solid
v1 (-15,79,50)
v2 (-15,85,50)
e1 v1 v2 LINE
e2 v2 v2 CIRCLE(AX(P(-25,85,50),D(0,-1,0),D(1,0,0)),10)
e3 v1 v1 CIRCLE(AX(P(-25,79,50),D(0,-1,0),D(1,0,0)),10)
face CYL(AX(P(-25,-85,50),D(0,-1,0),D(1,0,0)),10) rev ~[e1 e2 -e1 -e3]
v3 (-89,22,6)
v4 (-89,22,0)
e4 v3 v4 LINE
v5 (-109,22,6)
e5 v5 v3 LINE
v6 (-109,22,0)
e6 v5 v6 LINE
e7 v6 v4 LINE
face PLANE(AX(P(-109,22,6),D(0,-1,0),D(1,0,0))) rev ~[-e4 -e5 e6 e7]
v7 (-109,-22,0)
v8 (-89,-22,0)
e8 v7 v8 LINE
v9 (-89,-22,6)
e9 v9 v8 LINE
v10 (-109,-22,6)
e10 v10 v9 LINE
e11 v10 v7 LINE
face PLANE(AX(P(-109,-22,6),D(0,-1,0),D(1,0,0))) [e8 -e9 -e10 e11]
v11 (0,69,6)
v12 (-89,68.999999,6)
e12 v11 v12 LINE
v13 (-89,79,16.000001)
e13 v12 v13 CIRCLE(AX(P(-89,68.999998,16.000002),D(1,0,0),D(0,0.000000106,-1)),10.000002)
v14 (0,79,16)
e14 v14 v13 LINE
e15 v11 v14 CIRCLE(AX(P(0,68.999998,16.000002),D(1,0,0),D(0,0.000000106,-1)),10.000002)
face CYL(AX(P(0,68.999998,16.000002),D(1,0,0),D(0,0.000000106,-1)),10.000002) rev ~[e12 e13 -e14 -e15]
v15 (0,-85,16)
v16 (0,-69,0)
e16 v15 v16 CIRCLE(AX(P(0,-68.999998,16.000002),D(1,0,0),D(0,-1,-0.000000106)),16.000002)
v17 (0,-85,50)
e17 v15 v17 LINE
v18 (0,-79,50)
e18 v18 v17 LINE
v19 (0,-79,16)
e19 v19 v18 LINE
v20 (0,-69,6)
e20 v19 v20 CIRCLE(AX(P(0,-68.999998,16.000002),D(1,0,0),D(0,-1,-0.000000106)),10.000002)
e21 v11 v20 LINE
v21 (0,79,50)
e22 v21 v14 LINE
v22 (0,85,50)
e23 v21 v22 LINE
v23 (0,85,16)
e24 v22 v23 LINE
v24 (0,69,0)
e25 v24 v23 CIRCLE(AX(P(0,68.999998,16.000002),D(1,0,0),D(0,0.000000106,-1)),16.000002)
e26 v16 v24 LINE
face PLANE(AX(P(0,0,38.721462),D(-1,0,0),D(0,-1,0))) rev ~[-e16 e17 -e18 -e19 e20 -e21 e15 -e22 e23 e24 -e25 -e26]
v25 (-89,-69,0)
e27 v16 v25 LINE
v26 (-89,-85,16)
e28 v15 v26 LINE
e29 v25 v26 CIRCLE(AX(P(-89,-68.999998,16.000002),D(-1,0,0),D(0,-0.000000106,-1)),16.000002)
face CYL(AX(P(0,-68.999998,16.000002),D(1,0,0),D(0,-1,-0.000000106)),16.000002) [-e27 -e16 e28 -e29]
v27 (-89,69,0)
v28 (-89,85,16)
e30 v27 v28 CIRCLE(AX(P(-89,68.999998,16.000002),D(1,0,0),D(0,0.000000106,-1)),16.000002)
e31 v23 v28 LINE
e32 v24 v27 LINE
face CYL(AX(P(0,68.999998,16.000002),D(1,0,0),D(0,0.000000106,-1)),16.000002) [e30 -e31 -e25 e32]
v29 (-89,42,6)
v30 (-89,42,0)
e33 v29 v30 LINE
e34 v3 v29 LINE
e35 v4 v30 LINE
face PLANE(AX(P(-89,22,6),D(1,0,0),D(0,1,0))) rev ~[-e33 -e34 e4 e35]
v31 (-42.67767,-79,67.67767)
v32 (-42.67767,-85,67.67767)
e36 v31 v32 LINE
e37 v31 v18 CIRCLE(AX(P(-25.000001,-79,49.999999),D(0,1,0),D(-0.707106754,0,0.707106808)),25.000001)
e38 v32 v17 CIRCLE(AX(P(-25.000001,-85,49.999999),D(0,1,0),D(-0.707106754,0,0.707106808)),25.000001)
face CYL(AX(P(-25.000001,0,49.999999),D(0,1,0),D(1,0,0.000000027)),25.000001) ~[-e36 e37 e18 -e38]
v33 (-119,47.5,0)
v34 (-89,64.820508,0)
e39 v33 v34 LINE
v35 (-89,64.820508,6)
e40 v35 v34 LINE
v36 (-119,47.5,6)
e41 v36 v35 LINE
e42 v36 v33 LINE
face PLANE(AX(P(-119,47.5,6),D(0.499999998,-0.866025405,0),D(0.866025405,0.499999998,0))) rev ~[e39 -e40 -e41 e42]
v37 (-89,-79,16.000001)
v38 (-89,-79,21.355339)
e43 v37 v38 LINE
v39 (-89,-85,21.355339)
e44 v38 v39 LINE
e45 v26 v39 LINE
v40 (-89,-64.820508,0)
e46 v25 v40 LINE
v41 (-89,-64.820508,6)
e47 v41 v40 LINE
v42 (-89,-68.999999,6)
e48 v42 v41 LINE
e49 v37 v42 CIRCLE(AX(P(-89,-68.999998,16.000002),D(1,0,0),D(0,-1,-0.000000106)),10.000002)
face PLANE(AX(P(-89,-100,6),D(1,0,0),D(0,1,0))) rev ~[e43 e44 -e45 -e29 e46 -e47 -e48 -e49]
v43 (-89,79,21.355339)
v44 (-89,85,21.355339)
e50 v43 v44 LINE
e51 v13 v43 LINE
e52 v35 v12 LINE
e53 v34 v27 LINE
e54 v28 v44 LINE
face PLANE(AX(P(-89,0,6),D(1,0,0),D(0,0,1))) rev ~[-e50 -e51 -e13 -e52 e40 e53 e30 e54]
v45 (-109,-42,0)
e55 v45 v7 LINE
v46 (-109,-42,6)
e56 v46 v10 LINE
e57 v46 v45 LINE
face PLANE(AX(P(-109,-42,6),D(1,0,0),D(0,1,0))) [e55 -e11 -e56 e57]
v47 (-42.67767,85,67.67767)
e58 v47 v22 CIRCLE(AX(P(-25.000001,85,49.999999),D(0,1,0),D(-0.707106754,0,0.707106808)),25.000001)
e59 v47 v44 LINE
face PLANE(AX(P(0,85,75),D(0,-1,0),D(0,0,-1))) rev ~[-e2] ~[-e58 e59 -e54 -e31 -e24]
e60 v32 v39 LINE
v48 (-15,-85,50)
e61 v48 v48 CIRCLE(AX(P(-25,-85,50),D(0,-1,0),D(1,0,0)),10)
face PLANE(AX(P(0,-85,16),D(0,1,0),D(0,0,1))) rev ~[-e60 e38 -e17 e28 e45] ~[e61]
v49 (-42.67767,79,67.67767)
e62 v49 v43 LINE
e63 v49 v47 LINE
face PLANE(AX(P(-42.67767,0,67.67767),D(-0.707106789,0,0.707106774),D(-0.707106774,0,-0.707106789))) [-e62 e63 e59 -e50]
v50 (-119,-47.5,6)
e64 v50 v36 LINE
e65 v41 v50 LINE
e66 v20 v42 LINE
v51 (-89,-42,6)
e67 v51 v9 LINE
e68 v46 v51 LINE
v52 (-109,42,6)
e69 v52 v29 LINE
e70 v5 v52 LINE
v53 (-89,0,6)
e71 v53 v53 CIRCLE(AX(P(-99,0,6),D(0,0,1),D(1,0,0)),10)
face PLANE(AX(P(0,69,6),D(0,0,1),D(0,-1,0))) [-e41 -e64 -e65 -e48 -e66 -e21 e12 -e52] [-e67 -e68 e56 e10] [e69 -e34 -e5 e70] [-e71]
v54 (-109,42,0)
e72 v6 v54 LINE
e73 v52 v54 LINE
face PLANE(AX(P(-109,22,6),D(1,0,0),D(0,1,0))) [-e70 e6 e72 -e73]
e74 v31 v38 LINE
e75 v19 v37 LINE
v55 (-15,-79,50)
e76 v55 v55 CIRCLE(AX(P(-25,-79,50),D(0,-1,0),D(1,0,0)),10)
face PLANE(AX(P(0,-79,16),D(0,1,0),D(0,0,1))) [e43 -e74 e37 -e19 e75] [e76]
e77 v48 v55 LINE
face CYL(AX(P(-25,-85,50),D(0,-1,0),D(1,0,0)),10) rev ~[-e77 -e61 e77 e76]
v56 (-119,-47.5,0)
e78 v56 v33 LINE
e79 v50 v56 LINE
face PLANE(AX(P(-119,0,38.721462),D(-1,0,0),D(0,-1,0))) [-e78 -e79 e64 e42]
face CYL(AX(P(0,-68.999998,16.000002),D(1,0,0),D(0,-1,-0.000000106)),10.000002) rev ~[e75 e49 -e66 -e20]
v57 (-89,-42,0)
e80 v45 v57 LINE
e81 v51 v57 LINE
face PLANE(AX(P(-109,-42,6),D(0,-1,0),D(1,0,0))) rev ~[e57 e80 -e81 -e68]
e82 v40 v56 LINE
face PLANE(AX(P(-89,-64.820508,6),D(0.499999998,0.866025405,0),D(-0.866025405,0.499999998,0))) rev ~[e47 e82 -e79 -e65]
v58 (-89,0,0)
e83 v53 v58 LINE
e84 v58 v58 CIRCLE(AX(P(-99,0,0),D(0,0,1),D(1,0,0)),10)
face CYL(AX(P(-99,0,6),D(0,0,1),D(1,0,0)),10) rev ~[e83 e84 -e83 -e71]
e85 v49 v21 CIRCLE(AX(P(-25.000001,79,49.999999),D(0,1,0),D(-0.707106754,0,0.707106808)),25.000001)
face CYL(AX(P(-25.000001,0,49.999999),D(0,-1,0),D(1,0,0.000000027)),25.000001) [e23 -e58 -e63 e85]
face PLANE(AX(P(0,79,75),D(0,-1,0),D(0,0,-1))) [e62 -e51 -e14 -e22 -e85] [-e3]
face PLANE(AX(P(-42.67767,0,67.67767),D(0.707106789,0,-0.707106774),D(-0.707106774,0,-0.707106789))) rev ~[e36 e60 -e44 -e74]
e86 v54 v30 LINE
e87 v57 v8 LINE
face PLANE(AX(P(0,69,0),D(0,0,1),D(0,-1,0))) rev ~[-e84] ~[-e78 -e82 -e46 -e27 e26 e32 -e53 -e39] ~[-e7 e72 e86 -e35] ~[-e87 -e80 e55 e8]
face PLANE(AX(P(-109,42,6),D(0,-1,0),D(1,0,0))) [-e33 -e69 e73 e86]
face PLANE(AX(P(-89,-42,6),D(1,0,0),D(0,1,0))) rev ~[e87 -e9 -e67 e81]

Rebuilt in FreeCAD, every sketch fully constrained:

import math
import FreeCAD as App
import Part
import Sketcher
Q = App.Units.Quantity


def faces_at(feature, points):
    """Names of the faces that lie closest to the given points."""
    faces = feature.Shape.Faces
    near = lambda p: min(range(len(faces)), key=lambda i: faces[i].distToShape(Part.Vertex(*p))[0])
    return sorted({f"Face{near(p) + 1}" for p in points})


def add_polygon(sketch, points):
    """Adds a closed chain of lines whose ends are joined by coincident constraints."""
    first, n = sketch.GeometryCount, len(points)
    for a, b in zip(points, points[1:] + points[:1]):
        sketch.addGeometry(Part.LineSegment(App.Vector(*a, 0), App.Vector(*b, 0)), False)
    for i in range(n):
        sketch.addConstraint(Sketcher.Constraint("Coincident", first + i, 2, first + (i + 1) % n, 1))

doc = App.newDocument("Part")
body = doc.addObject("PartDesign::Body", "Body")

sketch1 = body.newObject("Sketcher::SketchObject", "Sketch")
sketch1.AttachmentSupport = (doc.getObject("YZ_Plane"), [""])
sketch1.MapMode = "FlatFace"
sketch1.addGeometry(Part.LineSegment(App.Vector(85, 75, 0), App.Vector(-85, 75, 0)), False)
sketch1.addGeometry(Part.LineSegment(App.Vector(-85, 75, 0), App.Vector(-85, 16, 0)), False)
sketch1.addGeometry(Part.ArcOfCircle(Part.Circle(App.Vector(-69, 16, 0), App.Vector(0, 0, 1), 16), math.radians(-180), math.radians(-90)), False)
sketch1.addGeometry(Part.LineSegment(App.Vector(-69, 0, 0), App.Vector(69, 0, 0)), False)
sketch1.addGeometry(Part.ArcOfCircle(Part.Circle(App.Vector(69, 16, 0), App.Vector(0, 0, 1), 16), math.radians(-90), math.radians(0)), False)
sketch1.addGeometry(Part.LineSegment(App.Vector(85, 16, 0), App.Vector(85, 75, 0)), False)
sketch1.addConstraint(Sketcher.Constraint("Coincident", 0, 2, 1, 1))
sketch1.addConstraint(Sketcher.Constraint("Tangent", 1, 2, 2, 1))
sketch1.addConstraint(Sketcher.Constraint("Tangent", 2, 2, 3, 1))
sketch1.addConstraint(Sketcher.Constraint("Tangent", 3, 2, 4, 1))
sketch1.addConstraint(Sketcher.Constraint("Tangent", 4, 2, 5, 1))
sketch1.addConstraint(Sketcher.Constraint("Coincident", 5, 2, 0, 1))
sketch1.addConstraint(Sketcher.Constraint("Horizontal", 0))
sketch1.addConstraint(Sketcher.Constraint("Vertical", 1))
sketch1.addConstraint(Sketcher.Constraint("Horizontal", 3))
sketch1.addConstraint(Sketcher.Constraint("Vertical", 5))
sketch1.addConstraint(Sketcher.Constraint("Equal", 2, 4))
sketch1.addConstraint(Sketcher.Constraint("Symmetric", 2, 2, 3, 2, -1, 1))
sketch1.addConstraint(Sketcher.Constraint("Radius", 2, Q("16.000002 mm")))
sketch1.addConstraint(Sketcher.Constraint("DistanceX", 0, 2, 0, 1, Q("170 mm")))
sketch1.addConstraint(Sketcher.Constraint("DistanceY", 1, 2, 1, 1, Q("59 mm")))
pad1 = body.newObject("PartDesign::Pad", "Pad")
pad1.Profile = sketch1
pad1.Length = 119
pad1.Reversed = True
doc.recompute()

thickness = body.newObject("PartDesign::Thickness", "Thickness")
thickness.Base = (pad1, faces_at(pad1, [(-119, 0, 37.5), (-59.5, 0, 75), (0, 0, 37.5)]))
thickness.Value = 6
thickness.Reversed = True
thickness.Join = "Arc"

sketch2 = body.newObject("Sketcher::SketchObject", "Sketch001")
sketch2.AttachmentSupport = (doc.getObject("XZ_Plane"), [""])
sketch2.MapMode = "FlatFace"
add_polygon(sketch2, [(-150, 100), (-150, -100), (150, -100), (150, 100)])
sketch2.addGeometry(Part.LineSegment(App.Vector(0, 50, 0), App.Vector(0, 0, 0)), False)
sketch2.addGeometry(Part.LineSegment(App.Vector(0, 0, 0), App.Vector(-119, 0, 0)), False)
sketch2.addGeometry(Part.LineSegment(App.Vector(-119, 0, 0), App.Vector(-119, 6, 0)), False)
sketch2.addGeometry(Part.LineSegment(App.Vector(-119, 6, 0), App.Vector(-89, 6, 0)), False)
sketch2.addGeometry(Part.LineSegment(App.Vector(-89, 6, 0), App.Vector(-89, 21, 0)), False)
sketch2.addGeometry(Part.LineSegment(App.Vector(-89, 21, 0), App.Vector(-43, 68, 0)), False)
sketch2.addGeometry(Part.ArcOfCircle(Part.Circle(App.Vector(-25, 50, 0), App.Vector(0, 0, 1), 25), math.radians(0), math.radians(135)), False)
sketch2.addConstraint(Sketcher.Constraint("Coincident", 4, 2, 5, 1))
sketch2.addConstraint(Sketcher.Constraint("Coincident", 5, 2, 6, 1))
sketch2.addConstraint(Sketcher.Constraint("Coincident", 6, 2, 7, 1))
sketch2.addConstraint(Sketcher.Constraint("Coincident", 7, 2, 8, 1))
sketch2.addConstraint(Sketcher.Constraint("Coincident", 8, 2, 9, 1))
sketch2.addConstraint(Sketcher.Constraint("Tangent", 9, 2, 10, 2))
sketch2.addConstraint(Sketcher.Constraint("Tangent", 10, 1, 4, 1))
sketch2.addConstraint(Sketcher.Constraint("Vertical", 0))
sketch2.addConstraint(Sketcher.Constraint("Horizontal", 1))
sketch2.addConstraint(Sketcher.Constraint("Vertical", 2))
sketch2.addConstraint(Sketcher.Constraint("Horizontal", 3))
sketch2.addConstraint(Sketcher.Constraint("Vertical", 4))
sketch2.addConstraint(Sketcher.Constraint("Horizontal", 5))
sketch2.addConstraint(Sketcher.Constraint("Vertical", 6))
sketch2.addConstraint(Sketcher.Constraint("Horizontal", 7))
sketch2.addConstraint(Sketcher.Constraint("Vertical", 8))
sketch2.addConstraint(Sketcher.Constraint("Coincident", 4, 2, -1, 1))
sketch2.addConstraint(Sketcher.Constraint("Symmetric", 0, 2, 2, 2, -1, 1))
sketch2.addConstraint(Sketcher.Constraint("Radius", 10, Q("25.000001 mm")))
sketch2.addConstraint(Sketcher.Constraint("DistanceX", 1, 1, 1, 2, Q("300 mm")))
sketch2.addConstraint(Sketcher.Constraint("DistanceX", 5, 2, 5, 1, Q("119 mm")))
sketch2.addConstraint(Sketcher.Constraint("DistanceX", 7, 1, 7, 2, Q("30 mm")))
sketch2.addConstraint(Sketcher.Constraint("DistanceY", 0, 2, 0, 1, Q("200 mm")))
sketch2.addConstraint(Sketcher.Constraint("DistanceY", 4, 2, 4, 1, Q("50 mm")))
sketch2.addConstraint(Sketcher.Constraint("DistanceY", 6, 1, 6, 2, Q("6 mm")))
sketch2.addConstraint(Sketcher.Constraint("Angle", 9, Q("45.000001 deg")))
pocket1 = body.newObject("PartDesign::Pocket", "Pocket")
pocket1.Profile = sketch2
pocket1.Type = "ThroughAll"
pocket1.Midplane = True

sketch3 = body.newObject("Sketcher::SketchObject", "Sketch002")
sketch3.AttachmentSupport = (doc.getObject("XY_Plane"), [""])
sketch3.MapMode = "FlatFace"
sketch3.AttachmentOffset = App.Placement(App.Vector(0, 0, 6), App.Rotation())
sketch3.addGeometry(Part.Circle(App.Vector(-99, 0, 0), App.Vector(0, 0, 1), 10), False)
add_polygon(sketch3, [(-89, 64.820508), (-89, 100), (-169, 100), (-169, -100), (-89, -100), (-89, -64.820508), (-119, -47.5), (-119, 47.5)])
add_polygon(sketch3, [(-109, 42), (-109, 22), (-89, 22), (-89, 42)])
add_polygon(sketch3, [(-109, -22), (-109, -42), (-89, -42), (-89, -22)])
sketch3.addConstraint(Sketcher.Constraint("Vertical", 1))
sketch3.addConstraint(Sketcher.Constraint("Horizontal", 2))
sketch3.addConstraint(Sketcher.Constraint("Vertical", 3))
sketch3.addConstraint(Sketcher.Constraint("Horizontal", 4))
sketch3.addConstraint(Sketcher.Constraint("Vertical", 5))
sketch3.addConstraint(Sketcher.Constraint("Vertical", 7))
sketch3.addConstraint(Sketcher.Constraint("Vertical", 9))
sketch3.addConstraint(Sketcher.Constraint("Horizontal", 10))
sketch3.addConstraint(Sketcher.Constraint("Vertical", 11))
sketch3.addConstraint(Sketcher.Constraint("Horizontal", 12))
sketch3.addConstraint(Sketcher.Constraint("Vertical", 13))
sketch3.addConstraint(Sketcher.Constraint("Horizontal", 14))
sketch3.addConstraint(Sketcher.Constraint("Vertical", 15))
sketch3.addConstraint(Sketcher.Constraint("Horizontal", 16))
sketch3.addConstraint(Sketcher.Constraint("Symmetric", 1, 2, 4, 2, -1))
sketch3.addConstraint(Sketcher.Constraint("Symmetric", 12, 2, 13, 2, -1))
sketch3.addConstraint(Sketcher.Constraint("Symmetric", 10, 2, 15, 2, -1))
sketch3.addConstraint(Sketcher.Constraint("PointOnObject", 0, 3, -1))
sketch3.addConstraint(Sketcher.Constraint("Vertical", 8, 2, 10, 2))
sketch3.addConstraint(Sketcher.Constraint("Equal", 1, 5))
sketch3.addConstraint(Sketcher.Constraint("Equal", 16, 9))
sketch3.addConstraint(Sketcher.Constraint("Equal", 6, 8))
sketch3.addConstraint(Sketcher.Constraint("Diameter", 0, Q("20 mm")))
sketch3.addConstraint(Sketcher.Constraint("DistanceX", 2, 2, 2, 1, Q("80 mm")))
sketch3.addConstraint(Sketcher.Constraint("DistanceX", 10, 1, 10, 2, Q("20 mm")))
sketch3.addConstraint(Sketcher.Constraint("DistanceY", 3, 2, 3, 1, Q("200 mm")))
sketch3.addConstraint(Sketcher.Constraint("DistanceY", 7, 1, 7, 2, Q("95 mm")))
sketch3.addConstraint(Sketcher.Constraint("Angle", 6, Q("150 deg")))
sketch3.addConstraint(Sketcher.Constraint("DistanceX", 0, 3, -1, 1, Q("99 mm")))
sketch3.addConstraint(Sketcher.Constraint("DistanceX", 1, 2, -1, 1, Q("89 mm")))
sketch3.addConstraint(Sketcher.Constraint("DistanceX", 6, 2, -1, 1, Q("119 mm")))
sketch3.addConstraint(Sketcher.Constraint("DistanceY", -1, 1, 9, 2, Q("22 mm")))
pocket2 = body.newObject("PartDesign::Pocket", "Pocket001")
pocket2.Profile = sketch3
pocket2.Type = "ThroughAll"
pocket2.Midplane = True

sketch4 = body.newObject("Sketcher::SketchObject", "Sketch003")
sketch4.AttachmentSupport = (doc.getObject("XZ_Plane"), [""])
sketch4.MapMode = "FlatFace"
sketch4.AttachmentOffset = App.Placement(App.Vector(0, 0, 85), App.Rotation())
sketch4.addGeometry(Part.Circle(App.Vector(-25, 50, 0), App.Vector(0, 0, 1), 10), False)
sketch4.addConstraint(Sketcher.Constraint("Diameter", 0, Q("20 mm")))
sketch4.addConstraint(Sketcher.Constraint("DistanceX", 0, 3, -1, 1, Q("25 mm")))
sketch4.addConstraint(Sketcher.Constraint("DistanceY", -1, 1, 0, 3, Q("50 mm")))
pocket3 = body.newObject("PartDesign::Pocket", "Pocket002")
pocket3.Profile = sketch4
pocket3.Type = "ThroughAll"

doc.recompute()
